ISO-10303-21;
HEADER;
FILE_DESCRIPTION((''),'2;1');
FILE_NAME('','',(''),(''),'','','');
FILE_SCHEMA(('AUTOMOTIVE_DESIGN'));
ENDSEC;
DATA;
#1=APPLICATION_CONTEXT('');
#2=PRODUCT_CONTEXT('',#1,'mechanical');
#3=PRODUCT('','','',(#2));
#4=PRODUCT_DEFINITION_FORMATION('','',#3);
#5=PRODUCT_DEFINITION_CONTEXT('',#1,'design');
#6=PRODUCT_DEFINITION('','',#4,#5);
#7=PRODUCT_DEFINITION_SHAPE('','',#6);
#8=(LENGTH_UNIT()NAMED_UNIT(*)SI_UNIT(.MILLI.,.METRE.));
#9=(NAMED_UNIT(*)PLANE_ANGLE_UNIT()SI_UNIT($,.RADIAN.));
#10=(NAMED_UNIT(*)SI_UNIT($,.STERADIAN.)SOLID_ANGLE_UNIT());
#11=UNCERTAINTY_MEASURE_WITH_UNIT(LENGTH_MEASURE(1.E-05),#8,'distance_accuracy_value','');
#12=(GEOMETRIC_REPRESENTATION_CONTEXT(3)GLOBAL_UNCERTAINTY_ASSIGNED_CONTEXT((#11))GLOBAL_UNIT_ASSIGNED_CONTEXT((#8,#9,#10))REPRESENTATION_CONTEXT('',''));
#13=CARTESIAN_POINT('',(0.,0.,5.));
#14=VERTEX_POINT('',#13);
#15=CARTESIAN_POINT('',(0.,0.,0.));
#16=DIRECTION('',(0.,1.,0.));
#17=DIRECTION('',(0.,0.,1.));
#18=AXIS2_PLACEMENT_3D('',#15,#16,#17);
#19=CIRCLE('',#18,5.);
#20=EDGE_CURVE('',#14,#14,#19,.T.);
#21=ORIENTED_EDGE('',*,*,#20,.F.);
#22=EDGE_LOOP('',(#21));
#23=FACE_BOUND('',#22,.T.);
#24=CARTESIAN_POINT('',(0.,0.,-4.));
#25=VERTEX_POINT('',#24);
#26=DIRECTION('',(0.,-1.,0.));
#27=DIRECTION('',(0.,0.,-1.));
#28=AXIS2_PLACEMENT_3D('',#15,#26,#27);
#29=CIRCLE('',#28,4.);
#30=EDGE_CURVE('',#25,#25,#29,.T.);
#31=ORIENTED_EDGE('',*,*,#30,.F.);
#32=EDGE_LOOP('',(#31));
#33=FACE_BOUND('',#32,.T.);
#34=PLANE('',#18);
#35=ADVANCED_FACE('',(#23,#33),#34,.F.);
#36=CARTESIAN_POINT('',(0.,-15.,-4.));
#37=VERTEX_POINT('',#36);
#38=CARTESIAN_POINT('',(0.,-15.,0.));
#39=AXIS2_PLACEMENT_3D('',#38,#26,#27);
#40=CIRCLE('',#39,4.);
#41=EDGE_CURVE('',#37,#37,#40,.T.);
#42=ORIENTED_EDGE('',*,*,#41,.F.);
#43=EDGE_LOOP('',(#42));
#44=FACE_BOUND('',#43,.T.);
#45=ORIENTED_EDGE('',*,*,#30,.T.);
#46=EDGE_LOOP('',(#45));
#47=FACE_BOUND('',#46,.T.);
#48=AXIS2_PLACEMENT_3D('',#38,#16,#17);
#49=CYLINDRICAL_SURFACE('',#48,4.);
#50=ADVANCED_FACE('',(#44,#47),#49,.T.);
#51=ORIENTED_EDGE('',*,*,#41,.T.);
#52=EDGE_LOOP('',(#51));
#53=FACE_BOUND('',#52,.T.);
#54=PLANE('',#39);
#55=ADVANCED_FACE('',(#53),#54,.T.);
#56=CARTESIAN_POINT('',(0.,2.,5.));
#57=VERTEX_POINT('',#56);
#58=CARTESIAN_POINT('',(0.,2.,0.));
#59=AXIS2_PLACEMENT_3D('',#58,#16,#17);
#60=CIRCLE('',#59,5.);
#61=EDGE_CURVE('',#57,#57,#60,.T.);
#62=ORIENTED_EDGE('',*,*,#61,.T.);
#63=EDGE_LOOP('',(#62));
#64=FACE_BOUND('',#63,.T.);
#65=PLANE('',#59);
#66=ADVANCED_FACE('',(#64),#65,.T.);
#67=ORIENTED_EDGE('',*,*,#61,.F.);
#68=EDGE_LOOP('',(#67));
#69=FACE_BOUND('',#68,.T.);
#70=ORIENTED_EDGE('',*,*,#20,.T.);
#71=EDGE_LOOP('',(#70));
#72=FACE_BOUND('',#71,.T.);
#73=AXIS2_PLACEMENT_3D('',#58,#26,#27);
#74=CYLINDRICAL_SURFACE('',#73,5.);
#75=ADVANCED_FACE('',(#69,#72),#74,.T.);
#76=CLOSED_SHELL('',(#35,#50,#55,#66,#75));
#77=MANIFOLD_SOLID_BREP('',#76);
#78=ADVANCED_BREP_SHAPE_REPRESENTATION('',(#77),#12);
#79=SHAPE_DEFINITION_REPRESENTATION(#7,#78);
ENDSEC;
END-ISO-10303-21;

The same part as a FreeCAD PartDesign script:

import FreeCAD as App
import Part
import Sketcher
Q = App.Units.Quantity

doc = App.newDocument("Part")
body = doc.addObject("PartDesign::Body", "Body")

# Sketch on XZ plane
sketch1 = doc.addObject("Sketcher::SketchObject", "Sketch")
body.addObject(sketch1)
sketch1.AttachmentSupport = (doc.XZ_Plane, [""])
sketch1.MapMode = "FlatFace"
sketch1.addGeometry(Part.Circle(App.Vector(0, 0, 0), App.Vector(0, 0, 1), 5), False)
sketch1.addConstraint(Sketcher.Constraint("Coincident", 0, 3, -1, 1))
sketch1.addConstraint(Sketcher.Constraint("Diameter", 0, Q("10 mm")))
pad1 = doc.addObject("PartDesign::Pad", "Pad")
body.addObject(pad1)
pad1.Profile = sketch1
pad1.Length = 2
pad1.Reversed = True

# Sketch on XZ plane
sketch2 = doc.addObject("Sketcher::SketchObject", "Sketch001")
body.addObject(sketch2)
sketch2.AttachmentSupport = (doc.XZ_Plane, [""])
sketch2.MapMode = "FlatFace"
sketch2.addGeometry(Part.Circle(App.Vector(0, 0, 0), App.Vector(0, 0, 1), 4), False)
sketch2.addConstraint(Sketcher.Constraint("Coincident", 0, 3, -1, 1))
sketch2.addConstraint(Sketcher.Constraint("Diameter", 0, Q("8 mm")))
pad2 = doc.addObject("PartDesign::Pad", "Pad001")
body.addObject(pad2)
pad2.Profile = sketch2
pad2.Length = 15

doc.recompute()
